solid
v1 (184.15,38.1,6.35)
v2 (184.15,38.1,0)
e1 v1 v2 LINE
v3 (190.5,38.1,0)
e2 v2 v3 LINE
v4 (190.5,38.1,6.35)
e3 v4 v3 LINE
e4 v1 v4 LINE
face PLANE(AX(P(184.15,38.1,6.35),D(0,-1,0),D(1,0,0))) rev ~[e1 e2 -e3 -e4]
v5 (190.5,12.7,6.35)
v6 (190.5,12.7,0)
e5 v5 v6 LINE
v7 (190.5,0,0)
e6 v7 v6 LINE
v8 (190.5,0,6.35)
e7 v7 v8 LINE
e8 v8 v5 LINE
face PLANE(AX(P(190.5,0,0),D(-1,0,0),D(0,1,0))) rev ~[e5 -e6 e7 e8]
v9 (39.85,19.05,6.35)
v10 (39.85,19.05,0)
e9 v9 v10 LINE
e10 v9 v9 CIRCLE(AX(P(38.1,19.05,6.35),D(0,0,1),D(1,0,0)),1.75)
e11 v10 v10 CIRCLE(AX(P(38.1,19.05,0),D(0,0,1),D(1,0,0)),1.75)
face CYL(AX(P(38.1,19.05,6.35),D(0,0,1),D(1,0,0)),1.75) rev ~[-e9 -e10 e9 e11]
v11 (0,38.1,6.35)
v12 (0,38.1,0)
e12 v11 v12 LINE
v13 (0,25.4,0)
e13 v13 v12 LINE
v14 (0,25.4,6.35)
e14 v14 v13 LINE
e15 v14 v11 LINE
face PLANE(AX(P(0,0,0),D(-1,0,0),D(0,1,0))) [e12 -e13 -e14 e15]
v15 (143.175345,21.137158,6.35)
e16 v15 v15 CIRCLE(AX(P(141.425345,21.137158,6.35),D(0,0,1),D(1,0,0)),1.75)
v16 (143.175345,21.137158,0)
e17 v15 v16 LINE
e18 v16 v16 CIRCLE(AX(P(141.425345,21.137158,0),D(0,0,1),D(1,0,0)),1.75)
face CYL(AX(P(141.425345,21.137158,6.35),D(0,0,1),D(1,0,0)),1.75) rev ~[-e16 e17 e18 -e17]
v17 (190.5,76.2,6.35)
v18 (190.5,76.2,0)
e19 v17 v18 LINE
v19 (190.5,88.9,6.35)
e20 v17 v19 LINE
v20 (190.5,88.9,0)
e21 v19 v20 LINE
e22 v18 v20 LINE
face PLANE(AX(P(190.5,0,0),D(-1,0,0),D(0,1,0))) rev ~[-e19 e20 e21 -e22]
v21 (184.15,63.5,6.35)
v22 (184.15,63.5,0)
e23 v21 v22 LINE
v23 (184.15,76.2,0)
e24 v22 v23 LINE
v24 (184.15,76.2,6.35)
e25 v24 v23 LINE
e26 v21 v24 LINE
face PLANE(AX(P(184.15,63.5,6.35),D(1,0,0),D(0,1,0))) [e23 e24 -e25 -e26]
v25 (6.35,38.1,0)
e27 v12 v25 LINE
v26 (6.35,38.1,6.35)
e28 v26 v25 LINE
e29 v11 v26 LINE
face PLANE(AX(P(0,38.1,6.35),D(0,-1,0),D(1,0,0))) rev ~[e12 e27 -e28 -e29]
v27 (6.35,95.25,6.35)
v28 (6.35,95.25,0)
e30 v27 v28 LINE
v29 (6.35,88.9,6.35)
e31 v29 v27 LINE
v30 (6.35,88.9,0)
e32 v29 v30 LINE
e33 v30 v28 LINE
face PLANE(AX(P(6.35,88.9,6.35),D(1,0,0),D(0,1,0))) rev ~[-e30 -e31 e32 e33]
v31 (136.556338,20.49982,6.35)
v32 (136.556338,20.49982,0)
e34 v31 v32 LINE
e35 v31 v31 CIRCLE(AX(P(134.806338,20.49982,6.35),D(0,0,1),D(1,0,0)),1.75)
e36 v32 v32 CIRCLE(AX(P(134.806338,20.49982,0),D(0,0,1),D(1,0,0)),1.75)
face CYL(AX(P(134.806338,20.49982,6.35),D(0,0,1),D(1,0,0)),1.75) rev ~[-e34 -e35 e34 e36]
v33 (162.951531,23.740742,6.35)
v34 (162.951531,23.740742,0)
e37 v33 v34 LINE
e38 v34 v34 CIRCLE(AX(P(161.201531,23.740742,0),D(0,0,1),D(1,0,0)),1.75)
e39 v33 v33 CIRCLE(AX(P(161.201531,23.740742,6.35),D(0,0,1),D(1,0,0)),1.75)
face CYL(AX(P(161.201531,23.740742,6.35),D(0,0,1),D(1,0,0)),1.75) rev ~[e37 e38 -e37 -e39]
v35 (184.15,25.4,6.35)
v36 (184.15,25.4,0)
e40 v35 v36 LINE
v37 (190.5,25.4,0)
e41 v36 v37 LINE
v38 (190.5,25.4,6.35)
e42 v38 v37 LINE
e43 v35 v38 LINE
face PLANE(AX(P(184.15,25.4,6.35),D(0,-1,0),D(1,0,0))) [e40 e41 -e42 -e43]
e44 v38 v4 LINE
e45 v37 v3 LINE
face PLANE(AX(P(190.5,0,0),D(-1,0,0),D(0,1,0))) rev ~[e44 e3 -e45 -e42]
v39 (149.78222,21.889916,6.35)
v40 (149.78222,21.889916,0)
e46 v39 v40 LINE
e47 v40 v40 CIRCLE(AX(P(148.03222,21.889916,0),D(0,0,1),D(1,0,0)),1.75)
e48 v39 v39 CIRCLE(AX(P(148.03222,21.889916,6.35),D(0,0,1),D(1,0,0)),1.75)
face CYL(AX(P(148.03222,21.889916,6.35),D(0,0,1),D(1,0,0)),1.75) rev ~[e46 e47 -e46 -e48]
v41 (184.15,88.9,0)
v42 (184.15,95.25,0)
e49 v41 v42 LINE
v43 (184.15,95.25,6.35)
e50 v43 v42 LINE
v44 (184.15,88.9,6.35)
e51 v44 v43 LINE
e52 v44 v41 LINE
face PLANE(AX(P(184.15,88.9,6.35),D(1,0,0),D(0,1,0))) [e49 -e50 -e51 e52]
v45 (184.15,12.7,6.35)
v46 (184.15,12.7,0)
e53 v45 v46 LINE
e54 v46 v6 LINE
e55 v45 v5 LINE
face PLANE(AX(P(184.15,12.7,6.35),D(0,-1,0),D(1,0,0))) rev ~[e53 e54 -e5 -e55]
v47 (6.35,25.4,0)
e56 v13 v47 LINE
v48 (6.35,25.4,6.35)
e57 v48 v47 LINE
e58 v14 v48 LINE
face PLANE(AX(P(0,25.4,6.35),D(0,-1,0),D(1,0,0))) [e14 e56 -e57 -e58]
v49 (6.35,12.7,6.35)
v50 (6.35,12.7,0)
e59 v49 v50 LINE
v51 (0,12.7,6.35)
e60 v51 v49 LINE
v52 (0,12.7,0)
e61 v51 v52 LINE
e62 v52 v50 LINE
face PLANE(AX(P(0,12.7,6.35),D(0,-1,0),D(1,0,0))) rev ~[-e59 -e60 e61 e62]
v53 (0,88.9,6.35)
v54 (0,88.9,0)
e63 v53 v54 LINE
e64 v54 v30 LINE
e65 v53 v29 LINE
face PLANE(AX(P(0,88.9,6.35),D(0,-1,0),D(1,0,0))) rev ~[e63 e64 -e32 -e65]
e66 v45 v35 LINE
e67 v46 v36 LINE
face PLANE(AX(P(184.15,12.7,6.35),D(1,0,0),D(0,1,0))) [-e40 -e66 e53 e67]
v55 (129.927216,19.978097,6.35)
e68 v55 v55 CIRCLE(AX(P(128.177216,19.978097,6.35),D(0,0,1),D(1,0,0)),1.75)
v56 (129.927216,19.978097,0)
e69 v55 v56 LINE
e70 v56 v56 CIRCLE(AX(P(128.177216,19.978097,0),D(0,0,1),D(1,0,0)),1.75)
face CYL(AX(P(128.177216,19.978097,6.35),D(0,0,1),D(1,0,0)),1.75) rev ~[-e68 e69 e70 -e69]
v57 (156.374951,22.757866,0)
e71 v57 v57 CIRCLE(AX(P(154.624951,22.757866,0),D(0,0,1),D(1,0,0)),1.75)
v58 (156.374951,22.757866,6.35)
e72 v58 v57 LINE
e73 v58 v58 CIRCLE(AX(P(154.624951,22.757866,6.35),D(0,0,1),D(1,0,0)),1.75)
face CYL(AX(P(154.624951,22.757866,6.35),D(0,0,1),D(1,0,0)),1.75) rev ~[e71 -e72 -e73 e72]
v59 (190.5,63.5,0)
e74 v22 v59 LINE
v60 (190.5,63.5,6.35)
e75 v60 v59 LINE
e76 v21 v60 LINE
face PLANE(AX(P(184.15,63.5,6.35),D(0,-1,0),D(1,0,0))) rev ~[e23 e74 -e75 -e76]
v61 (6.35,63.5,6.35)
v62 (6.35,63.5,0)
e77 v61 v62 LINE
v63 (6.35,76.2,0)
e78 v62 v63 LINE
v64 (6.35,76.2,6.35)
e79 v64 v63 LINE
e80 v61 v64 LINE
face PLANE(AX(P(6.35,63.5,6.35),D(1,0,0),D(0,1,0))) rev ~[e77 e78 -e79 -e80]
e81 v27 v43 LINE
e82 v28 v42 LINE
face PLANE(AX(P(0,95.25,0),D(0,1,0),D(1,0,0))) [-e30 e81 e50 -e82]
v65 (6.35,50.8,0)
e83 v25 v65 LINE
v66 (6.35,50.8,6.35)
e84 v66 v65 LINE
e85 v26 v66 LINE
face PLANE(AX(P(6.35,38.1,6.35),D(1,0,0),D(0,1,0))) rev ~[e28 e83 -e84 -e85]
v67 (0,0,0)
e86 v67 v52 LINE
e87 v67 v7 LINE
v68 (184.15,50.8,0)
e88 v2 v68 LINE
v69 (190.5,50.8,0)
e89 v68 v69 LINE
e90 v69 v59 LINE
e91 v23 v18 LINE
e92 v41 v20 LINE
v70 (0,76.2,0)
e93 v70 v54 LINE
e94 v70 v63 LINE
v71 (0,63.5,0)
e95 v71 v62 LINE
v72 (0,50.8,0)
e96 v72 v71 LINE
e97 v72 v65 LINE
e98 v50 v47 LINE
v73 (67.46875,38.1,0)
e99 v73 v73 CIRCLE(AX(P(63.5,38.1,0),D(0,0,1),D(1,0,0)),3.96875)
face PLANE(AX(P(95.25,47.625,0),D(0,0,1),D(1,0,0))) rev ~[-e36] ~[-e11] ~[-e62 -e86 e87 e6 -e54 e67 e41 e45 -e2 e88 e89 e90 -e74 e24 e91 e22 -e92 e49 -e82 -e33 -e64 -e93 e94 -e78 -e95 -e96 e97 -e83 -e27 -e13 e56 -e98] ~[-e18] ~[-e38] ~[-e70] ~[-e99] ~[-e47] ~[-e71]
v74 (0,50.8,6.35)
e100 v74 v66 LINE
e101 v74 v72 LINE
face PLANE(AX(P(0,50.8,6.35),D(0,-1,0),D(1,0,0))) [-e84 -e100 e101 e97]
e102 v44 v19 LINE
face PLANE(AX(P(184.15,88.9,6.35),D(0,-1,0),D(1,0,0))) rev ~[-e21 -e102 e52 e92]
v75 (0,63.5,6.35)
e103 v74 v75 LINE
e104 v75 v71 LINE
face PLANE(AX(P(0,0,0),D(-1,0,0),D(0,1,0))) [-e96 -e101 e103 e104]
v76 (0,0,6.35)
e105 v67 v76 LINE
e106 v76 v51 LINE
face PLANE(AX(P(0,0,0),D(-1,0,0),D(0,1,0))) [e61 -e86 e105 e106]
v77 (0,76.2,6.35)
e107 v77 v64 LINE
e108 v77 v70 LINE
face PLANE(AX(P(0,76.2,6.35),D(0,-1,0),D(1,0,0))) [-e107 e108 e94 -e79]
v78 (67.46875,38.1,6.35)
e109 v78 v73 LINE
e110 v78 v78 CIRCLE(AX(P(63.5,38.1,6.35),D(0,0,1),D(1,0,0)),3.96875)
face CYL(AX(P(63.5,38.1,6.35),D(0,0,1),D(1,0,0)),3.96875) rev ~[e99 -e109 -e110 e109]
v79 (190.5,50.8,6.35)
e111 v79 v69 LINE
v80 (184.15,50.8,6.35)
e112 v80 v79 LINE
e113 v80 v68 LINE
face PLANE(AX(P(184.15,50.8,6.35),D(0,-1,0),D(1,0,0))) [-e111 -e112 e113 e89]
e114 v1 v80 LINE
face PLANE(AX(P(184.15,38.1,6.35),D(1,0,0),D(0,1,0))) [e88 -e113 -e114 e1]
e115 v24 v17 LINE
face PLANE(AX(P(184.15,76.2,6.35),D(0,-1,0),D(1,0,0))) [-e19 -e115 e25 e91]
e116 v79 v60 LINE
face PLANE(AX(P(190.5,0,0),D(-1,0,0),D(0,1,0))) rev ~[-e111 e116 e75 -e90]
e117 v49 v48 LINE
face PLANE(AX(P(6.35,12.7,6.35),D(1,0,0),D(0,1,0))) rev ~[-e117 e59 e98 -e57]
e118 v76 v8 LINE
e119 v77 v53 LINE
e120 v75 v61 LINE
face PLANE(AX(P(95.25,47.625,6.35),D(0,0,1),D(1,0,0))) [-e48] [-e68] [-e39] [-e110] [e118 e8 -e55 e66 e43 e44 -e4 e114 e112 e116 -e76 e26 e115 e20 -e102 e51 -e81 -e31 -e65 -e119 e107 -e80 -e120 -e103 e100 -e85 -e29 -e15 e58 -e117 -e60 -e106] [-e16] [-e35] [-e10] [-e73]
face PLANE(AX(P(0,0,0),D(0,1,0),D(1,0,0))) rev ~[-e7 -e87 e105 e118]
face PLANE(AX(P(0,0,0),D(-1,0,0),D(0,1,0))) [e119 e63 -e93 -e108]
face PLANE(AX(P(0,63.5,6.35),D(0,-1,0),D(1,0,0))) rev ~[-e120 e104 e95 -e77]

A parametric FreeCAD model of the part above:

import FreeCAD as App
import Part
import Sketcher
from FreeCAD import Vector
Q = App.Units.Quantity

doc = App.newDocument("Part")
params = doc.addObject("Spreadsheet::Sheet", "Params")
for row, (alias, value) in enumerate([
    ("sketch1_width", "7.5 in"),
    ("sketch1_height", "3.75 in"),
    ("pad1_length", "0.25 in"),
    ("sketch2_diameter", "0.3125 in"),
    ("sketch3_height", "0.5 in"),
    ("sketch3_width", "0.25 in"),
    ("sketch4_height", "0.5 in"),
    ("sketch4_width", "0.25 in"),
    ("linearpattern_pitch", "1 in"),
], start=1):
    params.set(f"A{row}", alias)
    params.set(f"B{row}", "=" + value)
    params.setAlias(f"B{row}", alias)

body = doc.addObject("PartDesign::Body", "Body")

# Sketch on XY plane
sketch1 = doc.addObject("Sketcher::SketchObject", "Sketch")
body.addObject(sketch1)
sketch1.AttachmentSupport = (doc.XY_Plane, [""])
sketch1.MapMode = "FlatFace"
sketch1.addGeometry(Part.LineSegment(Vector(0, 95, 0), Vector(0, 0, 0)), False)
sketch1.addGeometry(Part.LineSegment(Vector(0, 0, 0), Vector(190, 0, 0)), False)
sketch1.addGeometry(Part.LineSegment(Vector(190, 0, 0), Vector(190, 95, 0)), False)
sketch1.addGeometry(Part.LineSegment(Vector(190, 95, 0), Vector(0, 95, 0)), False)
sketch1.addConstraint(Sketcher.Constraint("Coincident", 0, 2, 1, 1))
sketch1.addConstraint(Sketcher.Constraint("Coincident", 1, 2, 2, 1))
sketch1.addConstraint(Sketcher.Constraint("Coincident", 2, 2, 3, 1))
sketch1.addConstraint(Sketcher.Constraint("Coincident", 3, 2, 0, 1))
sketch1.addConstraint(Sketcher.Constraint("Vertical", 0))
sketch1.addConstraint(Sketcher.Constraint("Horizontal", 1))
sketch1.addConstraint(Sketcher.Constraint("Vertical", 2))
sketch1.addConstraint(Sketcher.Constraint("Horizontal", 3))
sketch1.addConstraint(Sketcher.Constraint("Coincident", 0, 2, -1, 1))
sketch1.addConstraint(Sketcher.Constraint("DistanceX", 1, 1, 1, 2, Q("7.5 in")))
sketch1.addConstraint(Sketcher.Constraint("DistanceY", 0, 2, 0, 1, Q("3.75 in")))
sketch1.setExpression("Constraints[9]", "Params.sketch1_width")
sketch1.setExpression("Constraints[10]", "Params.sketch1_height")
pad1 = doc.addObject("PartDesign::Pad", "Pad")
body.addObject(pad1)
pad1.Profile = sketch1
pad1.setExpression("Length", "Params.pad1_length")

# Sketch on XY plane
sketch2 = doc.addObject("Sketcher::SketchObject", "Sketch001")
body.addObject(sketch2)
sketch2.AttachmentSupport = (doc.XY_Plane, [""])
sketch2.MapMode = "FlatFace"
sketch2.AttachmentOffset = App.Placement(Vector(0, 0, 0.25 * 25.4), App.Rotation())
sketch2.addGeometry(Part.Circle(Vector(63.5, 38.1, 0), Vector(0, 0, 1), 4), False)
sketch2.addConstraint(Sketcher.Constraint("Diameter", 0, Q("0.3125 in")))
sketch2.addConstraint(Sketcher.Constraint("DistanceX", -1, 1, 0, 3, Q("2.5 in")))
sketch2.addConstraint(Sketcher.Constraint("DistanceY", -1, 1, 0, 3, Q("1.5 in")))
sketch2.setExpression("Constraints[0]", "Params.sketch2_diameter")
pocket1 = doc.addObject("PartDesign::Pocket", "Pocket")
body.addObject(pocket1)
pocket1.Profile = sketch2
pocket1.Type = "ThroughAll"

# Sketch on XY plane
sketch3 = doc.addObject("Sketcher::SketchObject", "Sketch002")
body.addObject(sketch3)
sketch3.AttachmentSupport = (doc.XY_Plane, [""])
sketch3.MapMode = "FlatFace"
sketch3.AttachmentOffset = App.Placement(Vector(0, 0, 0.25 * 25.4), App.Rotation())
sketch3.addGeometry(Part.LineSegment(Vector(0, 25, 0), Vector(0, 13, 0)), False)
sketch3.addGeometry(Part.LineSegment(Vector(0, 13, 0), Vector(6, 13, 0)), False)
sketch3.addGeometry(Part.LineSegment(Vector(6, 13, 0), Vector(6, 25, 0)), False)
sketch3.addGeometry(Part.LineSegment(Vector(6, 25, 0), Vector(0, 25, 0)), False)
sketch3.addConstraint(Sketcher.Constraint("Coincident", 0, 2, 1, 1))
sketch3.addConstraint(Sketcher.Constraint("Coincident", 1, 2, 2, 1))
sketch3.addConstraint(Sketcher.Constraint("Coincident", 2, 2, 3, 1))
sketch3.addConstraint(Sketcher.Constraint("Coincident", 3, 2, 0, 1))
sketch3.addConstraint(Sketcher.Constraint("Vertical", 0))
sketch3.addConstraint(Sketcher.Constraint("Horizontal", 1))
sketch3.addConstraint(Sketcher.Constraint("Vertical", 2))
sketch3.addConstraint(Sketcher.Constraint("Horizontal", 3))
sketch3.addConstraint(Sketcher.Constraint("PointOnObject", 0, 2, -2))
sketch3.addConstraint(Sketcher.Constraint("DistanceY", 0, 2, 0, 1, Q("0.5 in")))
sketch3.addConstraint(Sketcher.Constraint("DistanceY", -1, 1, 2, 2, Q("1 in")))
sketch3.addConstraint(Sketcher.Constraint("DistanceX", 1, 1, 1, 2, Q("0.25 in")))
sketch3.setExpression("Constraints[9]", "Params.sketch3_height")
sketch3.setExpression("Constraints[11]", "Params.sketch3_width")
pocket2 = doc.addObject("PartDesign::Pocket", "Pocket001")
body.addObject(pocket2)
pocket2.Profile = sketch3
pocket2.Type = "ThroughAll"

# Sketch on XY plane
sketch4 = doc.addObject("Sketcher::SketchObject", "Sketch003")
body.addObject(sketch4)
sketch4.AttachmentSupport = (doc.XY_Plane, [""])
sketch4.MapMode = "FlatFace"
sketch4.AttachmentOffset = App.Placement(Vector(0, 0, 0.25 * 25.4), App.Rotation())
sketch4.addGeometry(Part.LineSegment(Vector(184, 25, 0), Vector(184, 13, 0)), False)
sketch4.addGeometry(Part.LineSegment(Vector(184, 13, 0), Vector(190, 13, 0)), False)
sketch4.addGeometry(Part.LineSegment(Vector(190, 13, 0), Vector(190, 25, 0)), False)
sketch4.addGeometry(Part.LineSegment(Vector(190, 25, 0), Vector(184, 25, 0)), False)
sketch4.addConstraint(Sketcher.Constraint("Coincident", 0, 2, 1, 1))
sketch4.addConstraint(Sketcher.Constraint("Coincident", 1, 2, 2, 1))
sketch4.addConstraint(Sketcher.Constraint("Coincident", 2, 2, 3, 1))
sketch4.addConstraint(Sketcher.Constraint("Coincident", 3, 2, 0, 1))
sketch4.addConstraint(Sketcher.Constraint("Vertical", 0))
sketch4.addConstraint(Sketcher.Constraint("Horizontal", 1))
sketch4.addConstraint(Sketcher.Constraint("Vertical", 2))
sketch4.addConstraint(Sketcher.Constraint("Horizontal", 3))
sketch4.addConstraint(Sketcher.Constraint("DistanceY", 0, 2, 0, 1, Q("0.5 in")))
sketch4.addConstraint(Sketcher.Constraint("DistanceY", -1, 1, 2, 2, Q("1 in")))
sketch4.addConstraint(Sketcher.Constraint("DistanceX", 1, 1, 1, 2, Q("0.25 in")))
sketch4.addConstraint(Sketcher.Constraint("DistanceX", -1, 1, 1, 2, Q("7.5 in")))
sketch4.setExpression("Constraints[8]", "Params.sketch4_height")
sketch4.setExpression("Constraints[10]", "Params.sketch4_width")
pocket3 = doc.addObject("PartDesign::Pocket", "Pocket002")
body.addObject(pocket3)
pocket3.Profile = sketch4
pocket3.Type = "ThroughAll"
doc.recompute()

linearpattern = doc.addObject("PartDesign::LinearPattern", "LinearPattern")
body.addObject(linearpattern)
linearpattern.Originals = [pocket2, pocket3]
linearpattern.Direction = (doc.Y_Axis, [""])
linearpattern.Mode = "offset"
linearpattern.setExpression("Offset", "Params.linearpattern_pitch")
linearpattern.Occurrences = 4
body.Tip = linearpattern

# Sketch on XY plane
sketch5 = doc.addObject("Sketcher::SketchObject", "Sketch004")
body.addObject(sketch5)
sketch5.AttachmentSupport = (doc.XY_Plane, [""])
sketch5.MapMode = "FlatFace"
sketch5.AttachmentOffset = App.Placement(Vector(0, 0, 0.25 * 25.4), App.Rotation())
sketch5.addGeometry(Part.Circle(Vector(38.1, 19.1, 0), Vector(0, 0, 1), 1.8), False)
sketch5.addGeometry(Part.Circle(Vector(128.2, 20, 0), Vector(0, 0, 1), 1.8), False)
sketch5.addGeometry(Part.Circle(Vector(134.8, 20.5, 0), Vector(0, 0, 1), 1.8), False)
sketch5.addGeometry(Part.Circle(Vector(141.4, 21.1, 0), Vector(0, 0, 1), 1.8), False)
sketch5.addGeometry(Part.Circle(Vector(148, 21.9, 0), Vector(0, 0, 1), 1.8), False)
sketch5.addGeometry(Part.Circle(Vector(154.6, 22.8, 0), Vector(0, 0, 1), 1.8), False)
sketch5.addGeometry(Part.Circle(Vector(161.2, 23.7, 0), Vector(0, 0, 1), 1.8), False)
sketch5.addConstraint(Sketcher.Constraint("Equal", 0, 1))
sketch5.addConstraint(Sketcher.Constraint("Equal", 1, 2))
sketch5.addConstraint(Sketcher.Constraint("Equal", 2, 3))
sketch5.addConstraint(Sketcher.Constraint("Equal", 3, 4))
sketch5.addConstraint(Sketcher.Constraint("Equal", 4, 5))
sketch5.addConstraint(Sketcher.Constraint("Equal", 5, 6))
sketch5.addConstraint(Sketcher.Constraint("DistanceX", -1, 1, 0, 3, Q("1.5 in")))
sketch5.addConstraint(Sketcher.Constraint("Diameter", 0, Q("3.5 mm")))
sketch5.addConstraint(Sketcher.Constraint("DistanceY", -1, 1, 0, 3, Q("0.75 in")))
sketch5.addConstraint(Sketcher.Constraint("DistanceY", -1, 1, 2, 3, Q("20.49982 mm")))
sketch5.addConstraint(Sketcher.Constraint("DistanceX", -1, 1, 4, 3, Q("148.03222 mm")))
sketch5.addConstraint(Sketcher.Constraint("DistanceX", -1, 1, 5, 3, Q("154.624951 mm")))
sketch5.addConstraint(Sketcher.Constraint("DistanceX", -1, 1, 6, 3, Q("161.201531 mm")))
sketch5.addConstraint(Sketcher.Constraint("DistanceX", 1, 3, 2, 3, Q("6.629121 mm")))
sketch5.addConstraint(Sketcher.Constraint("DistanceX", 1, 3, 3, 3, Q("13.248128 mm")))
sketch5.addConstraint(Sketcher.Constraint("DistanceY", 1, 3, 3, 3, Q("1.159061 mm")))
sketch5.addConstraint(Sketcher.Constraint("DistanceY", 3, 3, 4, 3, Q("0.752758 mm")))
sketch5.addConstraint(Sketcher.Constraint("DistanceX", 2, 3, 4, 3, Q("13.225882 mm")))
sketch5.addConstraint(Sketcher.Constraint("DistanceY", 4, 3, 5, 3, Q("0.86795 mm")))
sketch5.addConstraint(Sketcher.Constraint("DistanceY", -1, 1, 1, 3, Q("19.978097 mm")))
sketch5.addConstraint(Sketcher.Constraint("DistanceY", -1, 1, 6, 3, Q("23.740742 mm")))
pocket4 = doc.addObject("PartDesign::Pocket", "Pocket003")
body.addObject(pocket4)
pocket4.Profile = sketch5
pocket4.Type = "ThroughAll"

doc.recompute()
